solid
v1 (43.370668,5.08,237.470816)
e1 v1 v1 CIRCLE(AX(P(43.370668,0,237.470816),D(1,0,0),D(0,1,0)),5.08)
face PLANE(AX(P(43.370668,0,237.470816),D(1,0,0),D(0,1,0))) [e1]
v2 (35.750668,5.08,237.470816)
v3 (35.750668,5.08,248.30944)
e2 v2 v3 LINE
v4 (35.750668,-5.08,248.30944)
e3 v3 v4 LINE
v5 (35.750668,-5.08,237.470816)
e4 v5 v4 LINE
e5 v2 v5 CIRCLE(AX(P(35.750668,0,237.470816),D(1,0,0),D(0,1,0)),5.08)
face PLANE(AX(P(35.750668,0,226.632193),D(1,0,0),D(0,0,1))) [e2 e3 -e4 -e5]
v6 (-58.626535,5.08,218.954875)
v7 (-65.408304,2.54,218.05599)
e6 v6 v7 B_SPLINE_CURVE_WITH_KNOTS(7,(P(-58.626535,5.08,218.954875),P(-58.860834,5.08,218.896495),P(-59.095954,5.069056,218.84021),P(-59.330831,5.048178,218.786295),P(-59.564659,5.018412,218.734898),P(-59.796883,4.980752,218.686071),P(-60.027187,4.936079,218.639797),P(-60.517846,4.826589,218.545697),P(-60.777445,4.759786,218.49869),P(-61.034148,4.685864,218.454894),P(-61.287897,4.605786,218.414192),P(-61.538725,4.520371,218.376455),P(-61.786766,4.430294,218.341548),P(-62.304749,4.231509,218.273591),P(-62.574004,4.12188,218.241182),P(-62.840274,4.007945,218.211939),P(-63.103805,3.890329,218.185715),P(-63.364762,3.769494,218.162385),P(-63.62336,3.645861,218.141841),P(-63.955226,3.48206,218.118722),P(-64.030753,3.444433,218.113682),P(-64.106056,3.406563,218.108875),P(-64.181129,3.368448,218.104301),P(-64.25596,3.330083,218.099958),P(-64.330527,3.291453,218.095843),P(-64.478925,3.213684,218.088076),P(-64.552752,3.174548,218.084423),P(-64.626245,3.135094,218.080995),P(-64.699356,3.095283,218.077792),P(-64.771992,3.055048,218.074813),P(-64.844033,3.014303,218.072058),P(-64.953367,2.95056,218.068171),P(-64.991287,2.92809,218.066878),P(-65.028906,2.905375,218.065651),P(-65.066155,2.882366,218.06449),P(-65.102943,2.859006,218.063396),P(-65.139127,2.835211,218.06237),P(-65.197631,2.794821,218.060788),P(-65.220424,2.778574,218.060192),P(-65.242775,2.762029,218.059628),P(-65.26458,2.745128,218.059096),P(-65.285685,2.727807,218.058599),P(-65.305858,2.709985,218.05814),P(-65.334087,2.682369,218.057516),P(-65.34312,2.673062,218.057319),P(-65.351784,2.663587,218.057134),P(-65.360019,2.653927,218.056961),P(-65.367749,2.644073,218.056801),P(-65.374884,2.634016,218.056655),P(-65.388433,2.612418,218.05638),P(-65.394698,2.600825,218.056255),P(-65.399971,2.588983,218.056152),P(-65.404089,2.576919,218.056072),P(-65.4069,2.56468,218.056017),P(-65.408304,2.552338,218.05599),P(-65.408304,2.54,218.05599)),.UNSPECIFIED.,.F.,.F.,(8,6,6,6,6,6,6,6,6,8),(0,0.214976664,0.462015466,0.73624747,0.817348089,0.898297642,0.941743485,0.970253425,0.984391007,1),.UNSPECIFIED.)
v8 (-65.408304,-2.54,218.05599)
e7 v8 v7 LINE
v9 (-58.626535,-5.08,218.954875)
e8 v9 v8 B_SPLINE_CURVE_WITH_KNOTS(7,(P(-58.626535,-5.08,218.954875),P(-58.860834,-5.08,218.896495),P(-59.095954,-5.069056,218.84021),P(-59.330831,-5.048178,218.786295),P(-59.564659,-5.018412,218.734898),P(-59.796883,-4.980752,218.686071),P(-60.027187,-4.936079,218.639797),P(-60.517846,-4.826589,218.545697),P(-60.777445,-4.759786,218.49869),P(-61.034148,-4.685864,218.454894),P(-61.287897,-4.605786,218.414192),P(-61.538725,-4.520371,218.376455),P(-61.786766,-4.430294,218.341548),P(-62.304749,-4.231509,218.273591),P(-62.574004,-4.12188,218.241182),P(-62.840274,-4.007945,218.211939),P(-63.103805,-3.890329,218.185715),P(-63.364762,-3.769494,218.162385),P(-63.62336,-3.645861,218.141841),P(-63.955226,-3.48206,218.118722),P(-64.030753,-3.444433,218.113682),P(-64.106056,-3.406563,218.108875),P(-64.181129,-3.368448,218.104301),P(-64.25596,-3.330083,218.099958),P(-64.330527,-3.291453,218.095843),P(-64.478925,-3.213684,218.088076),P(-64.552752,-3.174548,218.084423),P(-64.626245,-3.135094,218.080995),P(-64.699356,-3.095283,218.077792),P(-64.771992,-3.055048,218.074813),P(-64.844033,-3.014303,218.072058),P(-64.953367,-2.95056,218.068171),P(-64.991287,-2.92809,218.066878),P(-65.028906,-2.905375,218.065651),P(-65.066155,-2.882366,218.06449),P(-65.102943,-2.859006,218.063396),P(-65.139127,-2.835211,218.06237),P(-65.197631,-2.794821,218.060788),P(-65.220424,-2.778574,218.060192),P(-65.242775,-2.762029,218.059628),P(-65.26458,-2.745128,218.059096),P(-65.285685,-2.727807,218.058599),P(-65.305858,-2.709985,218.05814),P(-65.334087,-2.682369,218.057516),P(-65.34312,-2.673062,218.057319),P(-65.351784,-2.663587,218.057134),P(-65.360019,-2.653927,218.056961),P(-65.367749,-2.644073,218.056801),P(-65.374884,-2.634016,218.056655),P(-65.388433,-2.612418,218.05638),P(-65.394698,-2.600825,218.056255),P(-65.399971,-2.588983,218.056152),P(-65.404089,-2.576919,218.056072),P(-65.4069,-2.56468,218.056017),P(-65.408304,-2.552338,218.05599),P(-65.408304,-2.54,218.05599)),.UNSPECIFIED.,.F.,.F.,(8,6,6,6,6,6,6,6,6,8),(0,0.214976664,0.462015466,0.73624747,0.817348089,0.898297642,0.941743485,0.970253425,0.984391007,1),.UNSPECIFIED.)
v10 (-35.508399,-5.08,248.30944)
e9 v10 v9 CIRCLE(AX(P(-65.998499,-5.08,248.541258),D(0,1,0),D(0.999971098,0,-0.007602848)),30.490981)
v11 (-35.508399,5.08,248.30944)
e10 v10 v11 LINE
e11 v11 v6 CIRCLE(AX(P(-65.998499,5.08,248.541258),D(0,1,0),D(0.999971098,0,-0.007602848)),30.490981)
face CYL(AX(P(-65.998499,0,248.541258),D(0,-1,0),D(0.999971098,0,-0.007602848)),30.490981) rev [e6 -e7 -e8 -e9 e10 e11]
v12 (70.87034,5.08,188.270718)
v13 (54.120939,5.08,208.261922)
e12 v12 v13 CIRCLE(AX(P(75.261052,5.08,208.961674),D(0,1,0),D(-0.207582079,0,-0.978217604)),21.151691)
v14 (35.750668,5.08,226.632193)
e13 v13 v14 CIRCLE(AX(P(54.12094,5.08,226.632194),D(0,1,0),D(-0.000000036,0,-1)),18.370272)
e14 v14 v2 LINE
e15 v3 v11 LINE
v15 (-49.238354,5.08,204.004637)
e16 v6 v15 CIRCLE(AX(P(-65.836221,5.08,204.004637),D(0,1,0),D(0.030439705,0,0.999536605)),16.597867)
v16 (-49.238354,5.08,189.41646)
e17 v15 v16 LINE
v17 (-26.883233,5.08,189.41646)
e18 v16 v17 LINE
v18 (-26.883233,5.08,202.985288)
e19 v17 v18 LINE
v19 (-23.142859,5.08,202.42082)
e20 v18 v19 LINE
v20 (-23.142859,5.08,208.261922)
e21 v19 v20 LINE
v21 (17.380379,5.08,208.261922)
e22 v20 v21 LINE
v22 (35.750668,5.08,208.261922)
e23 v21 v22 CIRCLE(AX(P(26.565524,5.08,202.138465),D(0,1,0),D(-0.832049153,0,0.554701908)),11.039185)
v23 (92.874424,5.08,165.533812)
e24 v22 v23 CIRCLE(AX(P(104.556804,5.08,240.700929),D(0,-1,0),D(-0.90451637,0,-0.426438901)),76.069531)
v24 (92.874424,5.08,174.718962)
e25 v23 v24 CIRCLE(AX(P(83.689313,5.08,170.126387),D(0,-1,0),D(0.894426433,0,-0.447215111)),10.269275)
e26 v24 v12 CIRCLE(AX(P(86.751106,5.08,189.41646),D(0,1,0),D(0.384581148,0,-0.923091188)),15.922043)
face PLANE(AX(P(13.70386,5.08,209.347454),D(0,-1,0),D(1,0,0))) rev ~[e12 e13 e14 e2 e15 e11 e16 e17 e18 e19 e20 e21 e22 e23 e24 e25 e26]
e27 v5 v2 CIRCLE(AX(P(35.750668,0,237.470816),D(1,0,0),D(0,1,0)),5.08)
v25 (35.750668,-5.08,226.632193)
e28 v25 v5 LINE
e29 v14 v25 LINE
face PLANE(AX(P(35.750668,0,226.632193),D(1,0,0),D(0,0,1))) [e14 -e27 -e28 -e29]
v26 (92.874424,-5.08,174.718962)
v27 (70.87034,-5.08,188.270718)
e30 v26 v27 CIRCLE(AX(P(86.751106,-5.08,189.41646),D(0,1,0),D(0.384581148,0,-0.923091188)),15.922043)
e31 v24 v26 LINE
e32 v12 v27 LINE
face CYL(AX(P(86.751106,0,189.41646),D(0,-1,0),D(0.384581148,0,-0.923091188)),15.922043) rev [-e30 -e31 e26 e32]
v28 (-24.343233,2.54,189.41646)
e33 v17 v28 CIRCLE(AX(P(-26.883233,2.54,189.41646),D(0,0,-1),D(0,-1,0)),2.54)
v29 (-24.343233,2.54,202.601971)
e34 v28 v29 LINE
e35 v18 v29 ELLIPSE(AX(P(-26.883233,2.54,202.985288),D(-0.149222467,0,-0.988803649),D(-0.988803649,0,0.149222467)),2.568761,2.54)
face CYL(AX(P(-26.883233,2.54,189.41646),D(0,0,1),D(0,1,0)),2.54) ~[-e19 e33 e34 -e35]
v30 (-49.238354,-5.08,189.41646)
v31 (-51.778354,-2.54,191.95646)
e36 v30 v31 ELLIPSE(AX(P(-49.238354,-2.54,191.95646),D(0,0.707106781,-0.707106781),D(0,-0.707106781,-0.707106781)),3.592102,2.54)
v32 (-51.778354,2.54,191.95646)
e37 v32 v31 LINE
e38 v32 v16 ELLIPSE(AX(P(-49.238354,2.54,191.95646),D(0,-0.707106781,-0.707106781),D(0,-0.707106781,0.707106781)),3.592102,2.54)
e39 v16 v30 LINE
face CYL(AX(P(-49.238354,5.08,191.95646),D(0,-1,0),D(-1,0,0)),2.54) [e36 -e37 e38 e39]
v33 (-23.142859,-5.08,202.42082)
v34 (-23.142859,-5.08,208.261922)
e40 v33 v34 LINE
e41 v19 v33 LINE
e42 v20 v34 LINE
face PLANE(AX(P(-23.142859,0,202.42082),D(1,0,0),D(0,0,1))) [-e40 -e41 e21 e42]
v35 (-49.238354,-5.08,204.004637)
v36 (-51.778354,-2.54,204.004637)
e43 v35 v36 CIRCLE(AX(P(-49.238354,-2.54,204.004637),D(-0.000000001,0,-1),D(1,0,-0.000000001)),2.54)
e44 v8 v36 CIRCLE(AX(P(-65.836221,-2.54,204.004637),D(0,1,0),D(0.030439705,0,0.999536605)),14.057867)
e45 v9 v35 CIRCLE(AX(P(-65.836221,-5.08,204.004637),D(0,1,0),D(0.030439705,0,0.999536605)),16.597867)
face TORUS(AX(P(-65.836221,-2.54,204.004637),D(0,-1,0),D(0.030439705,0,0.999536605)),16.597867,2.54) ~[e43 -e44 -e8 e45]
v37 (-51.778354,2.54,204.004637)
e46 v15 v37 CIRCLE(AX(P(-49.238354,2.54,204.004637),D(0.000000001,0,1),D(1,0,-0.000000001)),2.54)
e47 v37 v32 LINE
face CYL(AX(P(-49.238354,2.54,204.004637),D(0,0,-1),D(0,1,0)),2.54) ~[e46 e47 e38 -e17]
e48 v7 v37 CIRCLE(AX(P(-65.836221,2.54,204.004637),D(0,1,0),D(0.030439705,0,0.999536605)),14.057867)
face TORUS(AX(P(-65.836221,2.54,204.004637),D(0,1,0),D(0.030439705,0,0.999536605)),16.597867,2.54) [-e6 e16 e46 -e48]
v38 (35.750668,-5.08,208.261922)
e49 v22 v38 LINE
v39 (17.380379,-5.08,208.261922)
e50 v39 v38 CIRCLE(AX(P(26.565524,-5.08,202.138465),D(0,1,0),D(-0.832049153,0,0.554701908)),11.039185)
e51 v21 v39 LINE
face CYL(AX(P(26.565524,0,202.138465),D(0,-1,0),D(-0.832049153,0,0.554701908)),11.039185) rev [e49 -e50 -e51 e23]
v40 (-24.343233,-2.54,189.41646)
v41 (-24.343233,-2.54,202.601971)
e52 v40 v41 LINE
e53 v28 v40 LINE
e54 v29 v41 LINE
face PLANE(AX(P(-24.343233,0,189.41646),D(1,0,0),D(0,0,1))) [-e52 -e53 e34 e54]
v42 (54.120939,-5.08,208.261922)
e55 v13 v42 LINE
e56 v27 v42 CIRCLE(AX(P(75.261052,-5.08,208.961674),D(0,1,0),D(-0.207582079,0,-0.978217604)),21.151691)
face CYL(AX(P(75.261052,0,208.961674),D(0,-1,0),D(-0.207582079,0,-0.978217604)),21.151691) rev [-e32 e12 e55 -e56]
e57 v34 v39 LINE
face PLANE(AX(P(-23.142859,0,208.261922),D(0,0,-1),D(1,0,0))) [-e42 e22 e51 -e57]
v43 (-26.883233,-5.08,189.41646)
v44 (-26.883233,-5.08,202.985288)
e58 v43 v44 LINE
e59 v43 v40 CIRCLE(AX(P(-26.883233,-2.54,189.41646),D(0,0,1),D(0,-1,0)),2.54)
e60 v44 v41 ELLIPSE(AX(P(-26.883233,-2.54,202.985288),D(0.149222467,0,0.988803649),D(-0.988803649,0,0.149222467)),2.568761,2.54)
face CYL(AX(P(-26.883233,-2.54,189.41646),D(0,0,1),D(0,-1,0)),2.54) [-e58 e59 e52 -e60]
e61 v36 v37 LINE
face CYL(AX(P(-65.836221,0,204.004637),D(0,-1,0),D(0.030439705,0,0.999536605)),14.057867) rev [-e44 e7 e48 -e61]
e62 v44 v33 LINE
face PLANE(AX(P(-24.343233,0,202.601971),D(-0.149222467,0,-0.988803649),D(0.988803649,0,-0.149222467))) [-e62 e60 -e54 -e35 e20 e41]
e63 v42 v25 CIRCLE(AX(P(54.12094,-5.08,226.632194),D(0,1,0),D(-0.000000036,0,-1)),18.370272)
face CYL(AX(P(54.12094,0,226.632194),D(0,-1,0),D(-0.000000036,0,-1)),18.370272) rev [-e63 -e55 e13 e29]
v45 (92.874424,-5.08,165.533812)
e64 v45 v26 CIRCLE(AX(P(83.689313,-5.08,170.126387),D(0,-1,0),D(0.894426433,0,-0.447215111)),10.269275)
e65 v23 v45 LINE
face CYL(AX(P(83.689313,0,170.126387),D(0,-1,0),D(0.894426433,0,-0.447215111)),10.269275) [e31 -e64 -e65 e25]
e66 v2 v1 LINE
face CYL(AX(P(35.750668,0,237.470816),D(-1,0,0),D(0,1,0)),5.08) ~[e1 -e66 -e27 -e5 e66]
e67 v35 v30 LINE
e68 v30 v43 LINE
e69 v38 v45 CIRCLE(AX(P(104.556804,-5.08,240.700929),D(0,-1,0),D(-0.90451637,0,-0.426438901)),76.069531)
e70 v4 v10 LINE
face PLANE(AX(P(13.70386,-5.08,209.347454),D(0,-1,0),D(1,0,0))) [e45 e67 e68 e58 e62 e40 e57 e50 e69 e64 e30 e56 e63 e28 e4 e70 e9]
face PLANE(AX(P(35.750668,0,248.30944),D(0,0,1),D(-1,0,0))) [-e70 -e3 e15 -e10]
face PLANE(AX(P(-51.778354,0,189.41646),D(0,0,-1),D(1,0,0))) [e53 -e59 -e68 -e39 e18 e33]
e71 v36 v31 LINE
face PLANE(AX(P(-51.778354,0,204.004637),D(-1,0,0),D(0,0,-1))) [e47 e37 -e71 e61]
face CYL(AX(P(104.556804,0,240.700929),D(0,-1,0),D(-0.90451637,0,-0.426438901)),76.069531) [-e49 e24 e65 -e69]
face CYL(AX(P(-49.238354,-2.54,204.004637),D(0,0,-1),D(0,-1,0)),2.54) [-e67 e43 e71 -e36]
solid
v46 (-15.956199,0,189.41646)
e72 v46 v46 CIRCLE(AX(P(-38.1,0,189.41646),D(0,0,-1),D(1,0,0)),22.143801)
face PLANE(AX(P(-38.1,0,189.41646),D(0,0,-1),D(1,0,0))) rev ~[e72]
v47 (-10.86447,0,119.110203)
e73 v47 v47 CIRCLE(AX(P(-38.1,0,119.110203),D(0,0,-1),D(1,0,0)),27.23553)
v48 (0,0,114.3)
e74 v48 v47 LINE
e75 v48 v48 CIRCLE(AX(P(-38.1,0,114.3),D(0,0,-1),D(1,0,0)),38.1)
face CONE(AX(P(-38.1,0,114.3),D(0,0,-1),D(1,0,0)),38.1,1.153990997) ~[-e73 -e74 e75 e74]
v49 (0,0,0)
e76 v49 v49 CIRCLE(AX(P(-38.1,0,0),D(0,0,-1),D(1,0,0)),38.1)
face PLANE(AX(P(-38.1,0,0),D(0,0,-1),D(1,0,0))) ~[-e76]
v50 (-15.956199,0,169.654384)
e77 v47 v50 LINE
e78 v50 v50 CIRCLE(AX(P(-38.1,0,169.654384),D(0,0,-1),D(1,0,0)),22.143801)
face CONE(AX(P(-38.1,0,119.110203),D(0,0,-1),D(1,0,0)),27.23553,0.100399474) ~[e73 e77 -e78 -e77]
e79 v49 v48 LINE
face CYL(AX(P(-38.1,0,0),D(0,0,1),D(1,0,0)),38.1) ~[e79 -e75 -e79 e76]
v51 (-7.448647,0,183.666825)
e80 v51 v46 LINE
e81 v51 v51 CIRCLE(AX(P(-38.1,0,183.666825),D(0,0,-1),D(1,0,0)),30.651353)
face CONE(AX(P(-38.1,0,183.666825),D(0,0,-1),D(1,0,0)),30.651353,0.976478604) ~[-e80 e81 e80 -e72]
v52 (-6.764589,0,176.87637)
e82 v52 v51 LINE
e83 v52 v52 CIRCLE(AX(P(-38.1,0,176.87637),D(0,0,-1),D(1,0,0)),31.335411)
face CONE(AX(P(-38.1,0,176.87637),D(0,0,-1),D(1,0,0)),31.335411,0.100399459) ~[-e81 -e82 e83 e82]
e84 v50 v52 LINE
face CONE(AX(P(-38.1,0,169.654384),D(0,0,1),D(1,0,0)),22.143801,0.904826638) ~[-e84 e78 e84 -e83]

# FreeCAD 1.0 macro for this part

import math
import FreeCAD as App
import Part
import Sketcher
Q = App.Units.Quantity


def edges_at(feature, points):
    """Names of the edges that pass closest to the given points."""
    edges = feature.Shape.Edges
    near = lambda p: min(range(len(edges)), key=lambda i: edges[i].distToShape(Part.Vertex(*p))[0])
    return sorted({f"Edge{near(p) + 1}" for p in points})


def add_polygon(sketch, points):
    """Adds a closed chain of lines whose ends are joined by coincident constraints."""
    first, n = sketch.GeometryCount, len(points)
    for a, b in zip(points, points[1:] + points[:1]):
        sketch.addGeometry(Part.LineSegment(App.Vector(*a, 0), App.Vector(*b, 0)), False)
    for i in range(n):
        sketch.addConstraint(Sketcher.Constraint("Coincident", first + i, 2, first + (i + 1) % n, 1))

doc = App.newDocument("Part")
params = doc.addObject("Spreadsheet::Sheet", "Params")
for row, (alias, value) in enumerate([
    ("sketch1_length", "2 in"),
    ("sketch1_width", "1.5 in"),
    ("sketch1_height", "4.5 in"),
    ("revolution_angle", "360 deg"),
    ("pad1_length", "0.2 in"),
    ("pad1_length2", "0.2 in"),
    ("sketch3_diameter", "0.4 in"),
    ("pad2_length", "0.3 in"),
    ("fillet_radius", "0.1 in"),
], start=1):
    params.set(f"A{row}", alias)
    params.set(f"B{row}", "=" + value)
    params.setAlias(f"B{row}", alias)

body = doc.addObject("PartDesign::Body", "Body")

# Sketch on XZ plane
sketch1 = body.newObject("Sketcher::SketchObject", "Sketch")
sketch1.AttachmentSupport = (doc.getObject("XZ_Plane"), [""])
sketch1.MapMode = "FlatFace"
add_polygon(sketch1, [(-38, 0), (0, 0), (0, 114), (-11, 119), (-16, 170), (-7, 177), (-7, 184), (-16, 189), (-38, 189)])  # lines 0-8
sketch1.addGeometry(Part.LineSegment(App.Vector(-38, 189, 0), App.Vector(-38, 0, 0)), True)  # axis
sketch1.addConstraint(Sketcher.Constraint("Horizontal", 0))
sketch1.addConstraint(Sketcher.Constraint("Vertical", 1))
sketch1.addConstraint(Sketcher.Constraint("Horizontal", 7))
sketch1.addConstraint(Sketcher.Constraint("Vertical", 8))
sketch1.addConstraint(Sketcher.Constraint("Vertical", 9))
sketch1.addConstraint(Sketcher.Constraint("Coincident", 0, 2, -1, 1))
sketch1.addConstraint(Sketcher.Constraint("Coincident", 9, 1, 7, 2))
sketch1.addConstraint(Sketcher.Constraint("PointOnObject", 9, 2, -1))
sketch1.addConstraint(Sketcher.Constraint("Parallel", 3, 5))
sketch1.addConstraint(Sketcher.Constraint("Vertical", 3, 2, 6, 2))
sketch1.addConstraint(Sketcher.Constraint("Distance", 3, Q("2 in")))
sketch1.addConstraint(Sketcher.Constraint("DistanceX", 0, 1, 0, 2, Q("1.5 in")))
sketch1.addConstraint(Sketcher.Constraint("DistanceY", 1, 1, 1, 2, Q("4.5 in")))
sketch1.addConstraint(Sketcher.Constraint("DistanceX", 7, 2, 7, 1, Q("22.143801 mm")))
sketch1.addConstraint(Sketcher.Constraint("Distance", 2, Q("11.881699 mm")))
sketch1.addConstraint(Sketcher.Constraint("DistanceY", 8, 2, 8, 1, Q("189.41646 mm")))
sketch1.addConstraint(Sketcher.Constraint("Distance", 4, Q("11.68943 mm")))
sketch1.addConstraint(Sketcher.Constraint("Distance", 6, Q("10.26824 mm")))
sketch1.addConstraint(Sketcher.Constraint("DistanceX", 2, 2, -1, 1, Q("10.86447 mm")))
sketch1.addConstraint(Sketcher.Constraint("DistanceX", 4, 2, -1, 1, Q("6.764589 mm")))
sketch1.setExpression("Constraints[19]", "Params.sketch1_length")
sketch1.setExpression("Constraints[20]", "Params.sketch1_width")
sketch1.setExpression("Constraints[21]", "Params.sketch1_height")
revolution = body.newObject("PartDesign::Revolution", "Revolution")
revolution.Profile = sketch1
revolution.ReferenceAxis = (sketch1, ["Axis0"])
revolution.setExpression("Angle", "Params.revolution_angle")
body2 = doc.addObject("PartDesign::Body", "Body001")

# Sketch on XZ plane
sketch2 = body2.newObject("Sketcher::SketchObject", "Sketch001")
sketch2.AttachmentSupport = (doc.getObject("XZ_Plane001"), [""])
sketch2.MapMode = "FlatFace"
sketch2.addGeometry(Part.LineSegment(App.Vector(-51.778354, 204.004637, 0), App.Vector(-51.778354, 189.41646, 0)), False)
sketch2.addGeometry(Part.LineSegment(App.Vector(-51.778354, 189.41646, 0), App.Vector(-24.343233, 189.41646, 0)), False)
sketch2.addGeometry(Part.LineSegment(App.Vector(-24.343233, 189.41646, 0), App.Vector(-24.343233, 202.601971, 0)), False)
sketch2.addGeometry(Part.LineSegment(App.Vector(-24.343233, 202.601971, 0), App.Vector(-23.142859, 202.42082, 0)), False)
sketch2.addGeometry(Part.LineSegment(App.Vector(-23.142859, 202.42082, 0), App.Vector(-23.142859, 208.261922, 0)), False)
sketch2.addGeometry(Part.LineSegment(App.Vector(-23.142859, 208.261922, 0), App.Vector(17.380379, 208.261922, 0)), False)
sketch2.addGeometry(Part.ArcOfCircle(Part.Circle(App.Vector(26.565524, 202.138465, 0), App.Vector(0, 0, 1), 11.039185), math.radians(33.690185), math.radians(146.309815)), False)
sketch2.addGeometry(Part.ArcOfCircle(Part.Circle(App.Vector(104.556804, 240.700929, 0), App.Vector(0, 0, 1), 76.069531), math.radians(-154.758225), math.radians(-98.834161)), False)
sketch2.addGeometry(Part.ArcOfCircle(Part.Circle(App.Vector(83.689313, 170.126387, 0), App.Vector(0, 0, 1), 10.269275), math.radians(-26.565148), math.radians(26.565148)), False)
sketch2.addGeometry(Part.ArcOfCircle(Part.Circle(App.Vector(86.751106, 189.41646, 0), App.Vector(0, 0, 1), 15.922043), math.radians(-175.873459), math.radians(-67.38226)), False)
sketch2.addGeometry(Part.ArcOfCircle(Part.Circle(App.Vector(75.261052, 208.961674, 0), App.Vector(0, 0, 1), 21.151691), math.radians(-178.104162), math.radians(-101.980693)), False)
sketch2.addGeometry(Part.ArcOfCircle(Part.Circle(App.Vector(54.12094, 226.632194, 0), App.Vector(0, 0, 1), 18.370272), math.radians(-179.999998), math.radians(-90.000002)), False)
sketch2.addGeometry(Part.LineSegment(App.Vector(35.750668, 226.632193, 0), App.Vector(35.750668, 248.30944, 0)), False)
sketch2.addGeometry(Part.LineSegment(App.Vector(35.750668, 248.30944, 0), App.Vector(-35.508399, 248.30944, 0)), False)
sketch2.addGeometry(Part.ArcOfCircle(Part.Circle(App.Vector(-65.998499, 248.541258, 0), App.Vector(0, 0, 1), 30.490981), math.radians(-88.890893), math.radians(-0.435615)), False)
sketch2.addGeometry(Part.ArcOfCircle(Part.Circle(App.Vector(-65.836221, 204.004637, 0), App.Vector(0, 0, 1), 14.057867), math.radians(0), math.radians(88.255664)), False)
sketch2.addConstraint(Sketcher.Constraint("Coincident", 0, 2, 1, 1))
sketch2.addConstraint(Sketcher.Constraint("Coincident", 1, 2, 2, 1))
sketch2.addConstraint(Sketcher.Constraint("Coincident", 2, 2, 3, 1))
sketch2.addConstraint(Sketcher.Constraint("Coincident", 3, 2, 4, 1))
sketch2.addConstraint(Sketcher.Constraint("Coincident", 4, 2, 5, 1))
sketch2.addConstraint(Sketcher.Constraint("Coincident", 5, 2, 6, 2))
sketch2.addConstraint(Sketcher.Constraint("Coincident", 6, 1, 7, 1))
sketch2.addConstraint(Sketcher.Constraint("Coincident", 7, 2, 8, 1))
sketch2.addConstraint(Sketcher.Constraint("Coincident", 8, 2, 9, 2))
sketch2.addConstraint(Sketcher.Constraint("Coincident", 9, 1, 10, 2))
sketch2.addConstraint(Sketcher.Constraint("Coincident", 10, 1, 11, 2))
sketch2.addConstraint(Sketcher.Constraint("Tangent", 11, 1, 12, 1))
sketch2.addConstraint(Sketcher.Constraint("Coincident", 12, 2, 13, 1))
sketch2.addConstraint(Sketcher.Constraint("Coincident", 13, 2, 14, 2))
sketch2.addConstraint(Sketcher.Constraint("Coincident", 14, 1, 15, 2))
sketch2.addConstraint(Sketcher.Constraint("Tangent", 15, 1, 0, 1))
sketch2.addConstraint(Sketcher.Constraint("Vertical", 0))
sketch2.addConstraint(Sketcher.Constraint("Horizontal", 1))
sketch2.addConstraint(Sketcher.Constraint("Vertical", 2))
sketch2.addConstraint(Sketcher.Constraint("Vertical", 4))
sketch2.addConstraint(Sketcher.Constraint("Horizontal", 5))
sketch2.addConstraint(Sketcher.Constraint("Vertical", 12))
sketch2.addConstraint(Sketcher.Constraint("Horizontal", 13))
sketch2.addConstraint(Sketcher.Constraint("Horizontal", 9, 3, 0, 2))
sketch2.addConstraint(Sketcher.Constraint("Horizontal", 5, 2, 6, 1))
sketch2.addConstraint(Sketcher.Constraint("Horizontal", 6, 1, 10, 1))
sketch2.addConstraint(Sketcher.Constraint("Vertical", 7, 2, 8, 2))
sketch2.addConstraint(Sketcher.Constraint("Vertical", 11, 3, 10, 1))
sketch2.addConstraint(Sketcher.Constraint("Vertical", 6, 1, 11, 1))
sketch2.addConstraint(Sketcher.Constraint("Radius", 7, Q("76.069531 mm")))
sketch2.addConstraint(Sketcher.Constraint("Radius", 10, Q("21.151691 mm")))
sketch2.addConstraint(Sketcher.Constraint("Radius", 11, Q("18.370272 mm")))
sketch2.addConstraint(Sketcher.Constraint("Radius", 14, Q("30.490981 mm")))
sketch2.addConstraint(Sketcher.Constraint("Radius", 6, Q("11.039185 mm")))
sketch2.addConstraint(Sketcher.Constraint("Radius", 8, Q("10.269275 mm")))
sketch2.addConstraint(Sketcher.Constraint("Radius", 9, Q("15.922043 mm")))
sketch2.addConstraint(Sketcher.Constraint("Radius", 15, Q("14.057867 mm")))
sketch2.addConstraint(Sketcher.Constraint("DistanceX", 1, 1, 1, 2, Q("27.435121 mm")))
sketch2.addConstraint(Sketcher.Constraint("DistanceX", 5, 1, 5, 2, Q("40.523238 mm")))
sketch2.addConstraint(Sketcher.Constraint("DistanceY", 2, 1, 2, 2, Q("13.185511 mm")))
sketch2.addConstraint(Sketcher.Constraint("DistanceX", 14, 3, -1, 1, Q("65.998499 mm")))
sketch2.addConstraint(Sketcher.Constraint("DistanceX", 13, 2, -1, 1, Q("35.508399 mm")))
sketch2.addConstraint(Sketcher.Constraint("DistanceY", 9, 3, 14, 3, Q("59.124798 mm")))
sketch2.addConstraint(Sketcher.Constraint("DistanceX", 10, 1, 9, 1, Q("16.749401 mm")))
sketch2.addConstraint(Sketcher.Constraint("DistanceX", 13, 2, 13, 1, Q("71.259067 mm")))
sketch2.addConstraint(Sketcher.Constraint("DistanceY", 0, 2, 0, 1, Q("14.588177 mm")))
sketch2.addConstraint(Sketcher.Constraint("DistanceY", 4, 1, 4, 2, Q("5.841102 mm")))
sketch2.addConstraint(Sketcher.Constraint("DistanceY", 12, 1, 12, 2, Q("21.677247 mm")))
sketch2.addConstraint(Sketcher.Constraint("DistanceY", -1, 1, 7, 3, Q("240.700929 mm")))
sketch2.addConstraint(Sketcher.Constraint("DistanceY", -1, 1, 9, 3, Q("189.41646 mm")))
sketch2.addConstraint(Sketcher.Constraint("DistanceX", -1, 1, 10, 3, Q("75.261052 mm")))
sketch2.addConstraint(Sketcher.Constraint("DistanceX", 15, 3, -1, 1, Q("65.836221 mm")))
sketch2.addConstraint(Sketcher.Constraint("DistanceX", 3, 2, -1, 1, Q("23.142859 mm")))
sketch2.addConstraint(Sketcher.Constraint("DistanceY", -1, 1, 7, 2, Q("165.533812 mm")))
pad1 = body2.newObject("PartDesign::Pad", "Pad")
pad1.Profile = sketch2
pad1.Type = "TwoLengths"
pad1.setExpression("Length", "Params.pad1_length")
pad1.setExpression("Length2", "Params.pad1_length2")

# Sketch on YZ plane
sketch3 = body2.newObject("Sketcher::SketchObject", "Sketch002")
sketch3.AttachmentSupport = (doc.getObject("YZ_Plane001"), [""])
sketch3.MapMode = "FlatFace"
sketch3.AttachmentOffset = App.Placement(App.Vector(0, 0, 35.750668), App.Rotation())
sketch3.addGeometry(Part.Circle(App.Vector(0, 237, 0), App.Vector(0, 0, 1), 5), False)
sketch3.addConstraint(Sketcher.Constraint("PointOnObject", 0, 3, -2))
sketch3.addConstraint(Sketcher.Constraint("Diameter", 0, Q("0.4 in")))
sketch3.addConstraint(Sketcher.Constraint("DistanceY", -1, 1, 0, 3, Q("237.470816 mm")))
sketch3.setExpression("Constraints[1]", "Params.sketch3_diameter")
pad2 = body2.newObject("PartDesign::Pad", "Pad001")
pad2.Profile = sketch3
pad2.setExpression("Length", "Params.pad2_length")
doc.recompute()

fillet = body2.newObject("PartDesign::Fillet", "Fillet")
fillet.Base = (pad2, edges_at(pad2, [
    (-51.778, -5.08, 196.711),
    (-51.778, 0, 189.416),
    (-51.778, 5.08, 196.711),
    (-51.778, 0, 204.005),
    (-24.343, 5.08, 196.009),
    (-24.343, -5.08, 196.009),
]))
fillet.setExpression("Radius", "Params.fillet_radius")

doc.recompute()
